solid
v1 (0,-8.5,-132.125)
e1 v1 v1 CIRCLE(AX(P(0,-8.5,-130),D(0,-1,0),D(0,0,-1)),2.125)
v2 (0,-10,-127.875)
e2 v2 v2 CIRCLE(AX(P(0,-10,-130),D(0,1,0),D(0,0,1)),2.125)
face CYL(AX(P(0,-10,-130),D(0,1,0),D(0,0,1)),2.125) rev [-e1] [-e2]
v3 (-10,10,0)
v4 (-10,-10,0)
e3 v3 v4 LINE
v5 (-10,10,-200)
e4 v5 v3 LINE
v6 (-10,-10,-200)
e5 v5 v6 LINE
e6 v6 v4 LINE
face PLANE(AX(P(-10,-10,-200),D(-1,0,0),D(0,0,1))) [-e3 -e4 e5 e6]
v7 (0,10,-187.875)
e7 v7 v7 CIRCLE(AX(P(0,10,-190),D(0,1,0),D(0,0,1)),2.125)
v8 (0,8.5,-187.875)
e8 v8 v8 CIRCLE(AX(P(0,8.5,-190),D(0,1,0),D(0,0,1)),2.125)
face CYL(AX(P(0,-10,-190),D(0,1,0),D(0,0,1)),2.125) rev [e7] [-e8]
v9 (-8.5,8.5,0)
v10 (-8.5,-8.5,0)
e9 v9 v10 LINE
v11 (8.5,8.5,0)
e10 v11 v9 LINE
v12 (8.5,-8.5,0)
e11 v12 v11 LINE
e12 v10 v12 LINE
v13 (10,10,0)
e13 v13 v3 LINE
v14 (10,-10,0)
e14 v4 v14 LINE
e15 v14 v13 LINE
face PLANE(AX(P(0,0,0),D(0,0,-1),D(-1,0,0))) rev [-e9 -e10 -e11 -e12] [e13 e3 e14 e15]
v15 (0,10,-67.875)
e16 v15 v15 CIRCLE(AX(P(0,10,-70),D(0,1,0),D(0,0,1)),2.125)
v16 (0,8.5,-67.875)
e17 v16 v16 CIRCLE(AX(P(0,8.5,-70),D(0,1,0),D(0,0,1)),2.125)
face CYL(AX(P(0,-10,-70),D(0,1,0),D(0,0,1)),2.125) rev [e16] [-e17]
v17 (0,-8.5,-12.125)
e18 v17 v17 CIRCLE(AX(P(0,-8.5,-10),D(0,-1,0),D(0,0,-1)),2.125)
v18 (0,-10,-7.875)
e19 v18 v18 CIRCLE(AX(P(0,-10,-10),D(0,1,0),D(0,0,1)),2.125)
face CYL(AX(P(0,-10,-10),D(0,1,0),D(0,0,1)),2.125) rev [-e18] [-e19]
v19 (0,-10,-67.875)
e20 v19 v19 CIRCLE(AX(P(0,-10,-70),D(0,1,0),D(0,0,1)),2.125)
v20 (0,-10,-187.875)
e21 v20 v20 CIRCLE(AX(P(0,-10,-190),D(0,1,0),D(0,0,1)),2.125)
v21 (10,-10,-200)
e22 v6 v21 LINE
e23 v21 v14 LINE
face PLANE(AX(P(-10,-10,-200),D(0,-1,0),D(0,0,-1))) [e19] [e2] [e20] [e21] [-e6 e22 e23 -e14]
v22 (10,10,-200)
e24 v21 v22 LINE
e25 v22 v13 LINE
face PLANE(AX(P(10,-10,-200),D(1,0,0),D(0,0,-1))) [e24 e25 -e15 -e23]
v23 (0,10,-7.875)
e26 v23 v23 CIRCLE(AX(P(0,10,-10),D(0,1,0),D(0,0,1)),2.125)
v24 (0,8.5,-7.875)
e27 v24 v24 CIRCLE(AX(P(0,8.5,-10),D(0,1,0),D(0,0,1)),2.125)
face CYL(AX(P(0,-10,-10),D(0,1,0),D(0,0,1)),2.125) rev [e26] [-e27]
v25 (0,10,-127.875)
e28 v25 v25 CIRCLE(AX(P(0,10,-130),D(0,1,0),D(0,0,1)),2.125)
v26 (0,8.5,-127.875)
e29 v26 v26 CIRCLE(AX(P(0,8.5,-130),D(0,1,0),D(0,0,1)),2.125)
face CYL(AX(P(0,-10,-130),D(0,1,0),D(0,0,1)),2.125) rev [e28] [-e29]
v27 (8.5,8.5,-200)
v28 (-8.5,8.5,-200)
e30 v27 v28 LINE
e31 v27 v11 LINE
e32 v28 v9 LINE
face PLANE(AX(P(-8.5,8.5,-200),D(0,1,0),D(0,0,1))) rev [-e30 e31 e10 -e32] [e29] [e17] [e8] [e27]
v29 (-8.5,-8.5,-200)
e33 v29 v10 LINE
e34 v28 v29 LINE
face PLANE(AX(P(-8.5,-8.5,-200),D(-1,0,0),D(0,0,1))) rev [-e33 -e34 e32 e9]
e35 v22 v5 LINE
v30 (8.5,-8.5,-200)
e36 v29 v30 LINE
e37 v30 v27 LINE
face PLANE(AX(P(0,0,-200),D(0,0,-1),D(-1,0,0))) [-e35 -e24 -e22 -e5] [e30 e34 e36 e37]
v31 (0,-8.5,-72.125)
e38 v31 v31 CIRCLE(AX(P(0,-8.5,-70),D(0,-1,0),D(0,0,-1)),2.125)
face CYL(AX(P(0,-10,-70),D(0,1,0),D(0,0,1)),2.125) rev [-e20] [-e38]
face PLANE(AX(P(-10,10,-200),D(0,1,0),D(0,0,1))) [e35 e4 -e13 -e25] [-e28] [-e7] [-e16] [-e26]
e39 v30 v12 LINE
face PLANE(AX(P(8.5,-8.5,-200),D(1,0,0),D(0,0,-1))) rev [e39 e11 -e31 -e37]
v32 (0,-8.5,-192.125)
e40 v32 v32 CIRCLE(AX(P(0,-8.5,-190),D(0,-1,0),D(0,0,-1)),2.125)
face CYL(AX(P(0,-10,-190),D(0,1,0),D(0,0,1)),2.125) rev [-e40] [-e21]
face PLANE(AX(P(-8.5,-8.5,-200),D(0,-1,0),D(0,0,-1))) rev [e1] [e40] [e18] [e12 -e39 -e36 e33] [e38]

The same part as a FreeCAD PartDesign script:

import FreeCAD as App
import Part
import Sketcher

V = App.Vector

doc = App.newDocument("Part")
body = doc.addObject("PartDesign::Body", "Body")

sketch1 = body.newObject("Sketcher::SketchObject", "Sketch")
sketch1.AttachmentSupport = (doc.getObject("XY_Plane"), [""])
sketch1.MapMode = "FlatFace"
sketch1.addGeometry([
    Part.LineSegment(V(-10, 10, 0), V(-10, -10, 0)),
    Part.LineSegment(V(-10, -10, 0), V(10, -10, 0)),
    Part.LineSegment(V(10, -10, 0), V(10, 10, 0)),
    Part.LineSegment(V(10, 10, 0), V(-10, 10, 0)),
    Part.LineSegment(V(8, -8, 0), V(-8, -8, 0)),
    Part.LineSegment(V(-8, -8, 0), V(-8, 8, 0)),
    Part.LineSegment(V(-8, 8, 0), V(8, 8, 0)),
    Part.LineSegment(V(8, 8, 0), V(8, -8, 0)),
], False)
sketch1.addConstraint([
    Sketcher.Constraint("Coincident", 0, 2, 1, 1),
    Sketcher.Constraint("Coincident", 1, 2, 2, 1),
    Sketcher.Constraint("Coincident", 2, 2, 3, 1),
    Sketcher.Constraint("Coincident", 3, 2, 0, 1),
    Sketcher.Constraint("Coincident", 4, 2, 5, 1),
    Sketcher.Constraint("Coincident", 5, 2, 6, 1),
    Sketcher.Constraint("Coincident", 6, 2, 7, 1),
    Sketcher.Constraint("Coincident", 7, 2, 4, 1),
    Sketcher.Constraint("Vertical", 0),
    Sketcher.Constraint("Horizontal", 1),
    Sketcher.Constraint("Vertical", 2),
    Sketcher.Constraint("Horizontal", 3),
    Sketcher.Constraint("Horizontal", 4),
    Sketcher.Constraint("Vertical", 5),
    Sketcher.Constraint("Horizontal", 6),
    Sketcher.Constraint("Vertical", 7),
    Sketcher.Constraint("Symmetric", 0, 2, 2, 2, -1, 1),
    Sketcher.Constraint("Symmetric", 4, 2, 6, 2, -1, 1),
    Sketcher.Constraint("Equal", 3, 0),
    Sketcher.Constraint("Equal", 6, 5),
    Sketcher.Constraint("DistanceX", 1, 1, 1, 2, 20.0),
    Sketcher.Constraint("DistanceX", 4, 2, 4, 1, 17.0),
])
pad1 = body.newObject("PartDesign::Pad", "Pad")
pad1.Profile = sketch1
pad1.Length = 200
pad1.Reversed = True

sketch2 = body.newObject("Sketcher::SketchObject", "Sketch001")
sketch2.AttachmentSupport = (doc.getObject("XZ_Plane"), [""])
sketch2.MapMode = "FlatFace"
sketch2.AttachmentOffset = App.Placement(V(0, 0, -10), App.Rotation())
sketch2.addGeometry([
    Part.Circle(V(0, -10, 0), V(0, 0, 1), 2.1),
    Part.Circle(V(0, -70, 0), V(0, 0, 1), 2.1),
    Part.Circle(V(0, -130, 0), V(0, 0, 1), 2.1),
    Part.Circle(V(0, -190, 0), V(0, 0, 1), 2.1),
], False)
sketch2.addConstraint([
    Sketcher.Constraint("Equal", 0, 1),
    Sketcher.Constraint("Equal", 1, 2),
    Sketcher.Constraint("Equal", 2, 3),
    Sketcher.Constraint("PointOnObject", 0, 3, -2),
    Sketcher.Constraint("PointOnObject", 1, 3, -2),
    Sketcher.Constraint("PointOnObject", 2, 3, -2),
    Sketcher.Constraint("PointOnObject", 3, 3, -2),
    Sketcher.Constraint("Diameter", 0, 4.25),
    Sketcher.Constraint("DistanceY", 0, 3, -1, 1, 10.0),
    Sketcher.Constraint("DistanceY", 1, 3, -1, 1, 70.0),
    Sketcher.Constraint("DistanceY", 2, 3, -1, 1, 130.0),
    Sketcher.Constraint("DistanceY", 3, 3, -1, 1, 190.0),
])
pocket1 = body.newObject("PartDesign::Pocket", "Pocket")
pocket1.Profile = sketch2
pocket1.Type = "ThroughAll"
pocket1.Reversed = True

doc.recompute()
